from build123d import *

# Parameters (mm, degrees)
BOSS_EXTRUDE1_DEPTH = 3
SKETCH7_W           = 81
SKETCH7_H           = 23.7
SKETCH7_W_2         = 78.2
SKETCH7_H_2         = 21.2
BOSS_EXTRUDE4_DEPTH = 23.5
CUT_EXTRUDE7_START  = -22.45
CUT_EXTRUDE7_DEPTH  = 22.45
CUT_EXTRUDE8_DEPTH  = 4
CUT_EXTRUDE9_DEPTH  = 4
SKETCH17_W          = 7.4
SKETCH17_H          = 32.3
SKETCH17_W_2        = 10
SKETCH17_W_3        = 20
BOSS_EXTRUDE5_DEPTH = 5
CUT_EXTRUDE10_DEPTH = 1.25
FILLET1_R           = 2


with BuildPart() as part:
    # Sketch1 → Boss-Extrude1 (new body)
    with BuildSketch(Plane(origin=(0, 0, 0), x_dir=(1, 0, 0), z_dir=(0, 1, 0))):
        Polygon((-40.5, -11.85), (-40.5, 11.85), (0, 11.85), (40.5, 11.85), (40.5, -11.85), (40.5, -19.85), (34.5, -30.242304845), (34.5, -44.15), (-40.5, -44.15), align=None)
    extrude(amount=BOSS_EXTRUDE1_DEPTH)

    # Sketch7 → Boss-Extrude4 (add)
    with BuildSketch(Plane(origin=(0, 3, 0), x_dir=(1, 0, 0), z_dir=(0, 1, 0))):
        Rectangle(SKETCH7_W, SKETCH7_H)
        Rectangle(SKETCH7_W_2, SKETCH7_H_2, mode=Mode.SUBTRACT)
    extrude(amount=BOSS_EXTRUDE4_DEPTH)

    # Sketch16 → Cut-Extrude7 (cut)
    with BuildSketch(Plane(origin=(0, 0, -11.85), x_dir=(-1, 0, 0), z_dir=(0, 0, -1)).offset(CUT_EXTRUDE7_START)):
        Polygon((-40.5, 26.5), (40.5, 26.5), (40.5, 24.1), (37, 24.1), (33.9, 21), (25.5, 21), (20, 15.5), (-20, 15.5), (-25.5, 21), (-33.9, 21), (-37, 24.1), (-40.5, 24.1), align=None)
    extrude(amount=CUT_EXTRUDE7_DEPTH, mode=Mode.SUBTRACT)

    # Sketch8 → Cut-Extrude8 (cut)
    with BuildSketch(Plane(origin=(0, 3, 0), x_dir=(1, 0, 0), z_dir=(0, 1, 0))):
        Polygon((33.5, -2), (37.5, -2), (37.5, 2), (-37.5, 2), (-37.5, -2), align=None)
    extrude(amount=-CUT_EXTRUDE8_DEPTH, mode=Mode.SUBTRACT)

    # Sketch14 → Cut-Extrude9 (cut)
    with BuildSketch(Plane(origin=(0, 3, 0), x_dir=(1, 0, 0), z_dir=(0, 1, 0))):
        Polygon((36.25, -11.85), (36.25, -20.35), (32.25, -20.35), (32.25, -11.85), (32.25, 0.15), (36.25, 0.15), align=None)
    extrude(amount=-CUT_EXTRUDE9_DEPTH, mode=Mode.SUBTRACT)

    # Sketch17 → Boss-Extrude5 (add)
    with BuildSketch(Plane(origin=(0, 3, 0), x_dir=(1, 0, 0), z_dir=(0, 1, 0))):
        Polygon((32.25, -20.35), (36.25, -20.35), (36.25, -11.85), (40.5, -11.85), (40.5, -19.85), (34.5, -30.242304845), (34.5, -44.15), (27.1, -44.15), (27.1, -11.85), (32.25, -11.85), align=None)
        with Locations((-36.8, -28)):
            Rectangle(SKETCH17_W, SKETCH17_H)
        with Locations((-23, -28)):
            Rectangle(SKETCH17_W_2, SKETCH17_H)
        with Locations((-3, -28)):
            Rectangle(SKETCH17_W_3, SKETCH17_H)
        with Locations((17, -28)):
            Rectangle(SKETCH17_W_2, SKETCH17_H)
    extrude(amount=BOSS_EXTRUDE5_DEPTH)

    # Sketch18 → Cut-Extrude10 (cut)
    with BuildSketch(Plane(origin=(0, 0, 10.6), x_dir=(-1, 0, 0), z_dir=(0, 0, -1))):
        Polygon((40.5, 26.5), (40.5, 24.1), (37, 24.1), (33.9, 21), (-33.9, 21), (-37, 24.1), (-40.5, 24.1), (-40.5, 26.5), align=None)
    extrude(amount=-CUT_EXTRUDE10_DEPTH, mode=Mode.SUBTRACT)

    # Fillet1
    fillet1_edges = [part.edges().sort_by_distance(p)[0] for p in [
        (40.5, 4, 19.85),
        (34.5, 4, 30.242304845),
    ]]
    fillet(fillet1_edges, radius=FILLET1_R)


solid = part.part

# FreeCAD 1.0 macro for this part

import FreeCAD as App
import Part
import Sketcher
from FreeCAD import Vector
Q = App.Units.Quantity


def edges_at(feature, points):
    """Names of the edges that pass closest to the given points."""
    edges = feature.Shape.Edges
    near = lambda p: min(range(len(edges)), key=lambda i: edges[i].distToShape(Part.Vertex(*p))[0])
    return sorted({f"Edge{near(p) + 1}" for p in points})

doc = App.newDocument("Part")
params = doc.addObject("Spreadsheet::Sheet", "Params")
for row, (alias, value) in enumerate([
    ("sketch1_width", "75 mm"),
    ("sketch1_width2", "81 mm"),
    ("sketch1_height", "56 mm"),
    ("sketch1_height2", "31.7 mm"),
    ("pad1_length", "3 mm"),
    ("sketch2_width", "81 mm"),
    ("sketch2_width2", "78.2 mm"),
    ("sketch2_height", "23.7 mm"),
    ("sketch2_height2", "21.2 mm"),
    ("pad2_length", "23.5 mm"),
    ("sketch3_width", "81 mm"),
    ("sketch3_width2", "40 mm"),
    ("sketch3_width3", "3.5 mm"),
    ("sketch3_width4", "8.4 mm"),
    ("sketch3_height", "2.4 mm"),
    ("pocket1_length", "22.45 mm"),
    ("sketch4_width", "75 mm"),
    ("sketch4_height", "4 mm"),
    ("pocket2_length", "4 mm"),
    ("sketch5_width", "4 mm"),
    ("sketch5_height", "20.5 mm"),
    ("pocket3_length", "4 mm"),
    ("sketch6_width", "4 mm"),
    ("sketch6_width2", "10 mm"),
    ("sketch6_width3", "20 mm"),
    ("sketch6_height", "8 mm"),
    ("sketch6_length", "12 mm"),
    ("pad3_length", "5 mm"),
    ("sketch7_width", "81 mm"),
    ("sketch7_width2", "3.5 mm"),
    ("sketch7_width3", "67.8 mm"),
    ("sketch7_height", "2.4 mm"),
    ("pocket4_length", "1.25 mm"),
    ("fillet_radius", "2 mm"),
], start=1):
    params.set(f"A{row}", alias)
    params.set(f"B{row}", "=" + value)
    params.setAlias(f"B{row}", alias)

body = doc.addObject("PartDesign::Body", "Body")

sketch1 = doc.addObject("Sketcher::SketchObject", "Sketch")
body.addObject(sketch1)
sketch1.AttachmentSupport = (doc.XZ_Plane, [""])
sketch1.MapMode = "FlatFace"
sketch1.addGeometry([
    Part.LineSegment(Vector(-40.5, -11.85, 0), Vector(-40.5, 44.15, 0)),
    Part.LineSegment(Vector(-40.5, 44.15, 0), Vector(34.5, 44.15, 0)),
    Part.LineSegment(Vector(34.5, 44.15, 0), Vector(34.5, 30.242305, 0)),
    Part.LineSegment(Vector(34.5, 30.242305, 0), Vector(40.5, 19.85, 0)),
    Part.LineSegment(Vector(40.5, 19.85, 0), Vector(40.5, -11.85, 0)),
    Part.LineSegment(Vector(40.5, -11.85, 0), Vector(-40.5, -11.85, 0)),
], False)
sketch1.addConstraint([
    Sketcher.Constraint("Coincident", 0, 2, 1, 1),
    Sketcher.Constraint("Coincident", 1, 2, 2, 1),
    Sketcher.Constraint("Coincident", 2, 2, 3, 1),
    Sketcher.Constraint("Coincident", 3, 2, 4, 1),
    Sketcher.Constraint("Coincident", 4, 2, 5, 1),
    Sketcher.Constraint("Coincident", 5, 2, 0, 1),
    Sketcher.Constraint("Vertical", 0),
    Sketcher.Constraint("Horizontal", 1),
    Sketcher.Constraint("Vertical", 2),
    Sketcher.Constraint("Vertical", 4),
    Sketcher.Constraint("Horizontal", 5),
    Sketcher.Constraint("DistanceX", 1, 1, 1, 2, 75.0),
    Sketcher.Constraint("DistanceX", 5, 2, 5, 1, 81.0),
    Sketcher.Constraint("DistanceY", 0, 1, 0, 2, 56.0),
    Sketcher.Constraint("Angle", 3, Q("-60 deg")),
    Sketcher.Constraint("DistanceY", 4, 2, 4, 1, 31.7),
    Sketcher.Constraint("DistanceX", 0, 2, -1, 1, 40.5),
    Sketcher.Constraint("DistanceY", -1, 1, 0, 2, 44.15),
])
sketch1.setExpression("Constraints[11]", "Params.sketch1_width")
sketch1.setExpression("Constraints[12]", "Params.sketch1_width2")
sketch1.setExpression("Constraints[13]", "Params.sketch1_height")
sketch1.setExpression("Constraints[15]", "Params.sketch1_height2")
pad1 = doc.addObject("PartDesign::Pad", "Pad")
body.addObject(pad1)
pad1.Profile = sketch1
pad1.setExpression("Length", "Params.pad1_length")
pad1.Reversed = True

sketch2 = doc.addObject("Sketcher::SketchObject", "Sketch001")
body.addObject(sketch2)
sketch2.AttachmentSupport = (doc.XZ_Plane, [""])
sketch2.MapMode = "FlatFace"
sketch2.AttachmentOffset = App.Placement(Vector(0, 0, -3), App.Rotation())
sketch2.addGeometry([
    Part.LineSegment(Vector(-40.5, -11.85, 0), Vector(-40.5, 11.85, 0)),
    Part.LineSegment(Vector(-40.5, 11.85, 0), Vector(40.5, 11.85, 0)),
    Part.LineSegment(Vector(40.5, 11.85, 0), Vector(40.5, -11.85, 0)),
    Part.LineSegment(Vector(40.5, -11.85, 0), Vector(-40.5, -11.85, 0)),
    Part.LineSegment(Vector(39.1, 10.6, 0), Vector(-39.1, 10.6, 0)),
    Part.LineSegment(Vector(-39.1, 10.6, 0), Vector(-39.1, -10.6, 0)),
    Part.LineSegment(Vector(-39.1, -10.6, 0), Vector(39.1, -10.6, 0)),
    Part.LineSegment(Vector(39.1, -10.6, 0), Vector(39.1, 10.6, 0)),
], False)
sketch2.addConstraint([
    Sketcher.Constraint("Coincident", 0, 2, 1, 1),
    Sketcher.Constraint("Coincident", 1, 2, 2, 1),
    Sketcher.Constraint("Coincident", 2, 2, 3, 1),
    Sketcher.Constraint("Coincident", 3, 2, 0, 1),
    Sketcher.Constraint("Coincident", 4, 2, 5, 1),
    Sketcher.Constraint("Coincident", 5, 2, 6, 1),
    Sketcher.Constraint("Coincident", 6, 2, 7, 1),
    Sketcher.Constraint("Coincident", 7, 2, 4, 1),
    Sketcher.Constraint("Vertical", 0),
    Sketcher.Constraint("Horizontal", 1),
    Sketcher.Constraint("Vertical", 2),
    Sketcher.Constraint("Horizontal", 3),
    Sketcher.Constraint("Horizontal", 4),
    Sketcher.Constraint("Vertical", 5),
    Sketcher.Constraint("Horizontal", 6),
    Sketcher.Constraint("Vertical", 7),
    Sketcher.Constraint("Symmetric", 0, 2, 2, 2, -1, 1),
    Sketcher.Constraint("Symmetric", 4, 2, 6, 2, -1, 1),
    Sketcher.Constraint("DistanceX", 1, 1, 1, 2, 81.0),
    Sketcher.Constraint("DistanceX", 4, 2, 4, 1, 78.2),
    Sketcher.Constraint("DistanceY", 0, 1, 0, 2, 23.7),
    Sketcher.Constraint("DistanceY", 5, 2, 5, 1, 21.2),
])
sketch2.setExpression("Constraints[18]", "Params.sketch2_width")
sketch2.setExpression("Constraints[19]", "Params.sketch2_width2")
sketch2.setExpression("Constraints[20]", "Params.sketch2_height")
sketch2.setExpression("Constraints[21]", "Params.sketch2_height2")
pad2 = doc.addObject("PartDesign::Pad", "Pad001")
body.addObject(pad2)
pad2.Profile = sketch2
pad2.setExpression("Length", "Params.pad2_length")
pad2.Reversed = True

sketch3 = doc.addObject("Sketcher::SketchObject", "Sketch002")
body.addObject(sketch3)
sketch3.AttachmentSupport = (doc.XY_Plane, [""])
sketch3.MapMode = "FlatFace"
sketch3.AttachmentOffset = App.Placement(Vector(0, 0, 10.6), App.Rotation())
sketch3.addGeometry([
    Part.LineSegment(Vector(-40.5, 26.5, 0), Vector(40.5, 26.5, 0)),
    Part.LineSegment(Vector(40.5, 26.5, 0), Vector(40.5, 24.1, 0)),
    Part.LineSegment(Vector(40.5, 24.1, 0), Vector(37, 24.1, 0)),
    Part.LineSegment(Vector(37, 24.1, 0), Vector(33.9, 21, 0)),
    Part.LineSegment(Vector(33.9, 21, 0), Vector(25.5, 21, 0)),
    Part.LineSegment(Vector(25.5, 21, 0), Vector(20, 15.5, 0)),
    Part.LineSegment(Vector(20, 15.5, 0), Vector(-20, 15.5, 0)),
    Part.LineSegment(Vector(-20, 15.5, 0), Vector(-25.5, 21, 0)),
    Part.LineSegment(Vector(-25.5, 21, 0), Vector(-33.9, 21, 0)),
    Part.LineSegment(Vector(-33.9, 21, 0), Vector(-37, 24.1, 0)),
    Part.LineSegment(Vector(-37, 24.1, 0), Vector(-40.5, 24.1, 0)),
    Part.LineSegment(Vector(-40.5, 24.1, 0), Vector(-40.5, 26.5, 0)),
], False)
sketch3.addConstraint([
    Sketcher.Constraint("Coincident", 0, 2, 1, 1),
    Sketcher.Constraint("Coincident", 1, 2, 2, 1),
    Sketcher.Constraint("Coincident", 2, 2, 3, 1),
    Sketcher.Constraint("Coincident", 3, 2, 4, 1),
    Sketcher.Constraint("Coincident", 4, 2, 5, 1),
    Sketcher.Constraint("Coincident", 5, 2, 6, 1),
    Sketcher.Constraint("Coincident", 6, 2, 7, 1),
    Sketcher.Constraint("Coincident", 7, 2, 8, 1),
    Sketcher.Constraint("Coincident", 8, 2, 9, 1),
    Sketcher.Constraint("Coincident", 9, 2, 10, 1),
    Sketcher.Constraint("Coincident", 10, 2, 11, 1),
    Sketcher.Constraint("Coincident", 11, 2, 0, 1),
    Sketcher.Constraint("Horizontal", 0),
    Sketcher.Constraint("Vertical", 1),
    Sketcher.Constraint("Horizontal", 2),
    Sketcher.Constraint("Horizontal", 4),
    Sketcher.Constraint("Horizontal", 6),
    Sketcher.Constraint("Horizontal", 8),
    Sketcher.Constraint("Horizontal", 10),
    Sketcher.Constraint("Vertical", 11),
    Sketcher.Constraint("Symmetric", 4, 2, 7, 2, -2),
    Sketcher.Constraint("Symmetric", 2, 2, 9, 2, -2),
    Sketcher.Constraint("Parallel", 3, 5),
    Sketcher.Constraint("Perpendicular", 5, 7),
    Sketcher.Constraint("Parallel", 7, 9),
    Sketcher.Constraint("Equal", 4, 8),
    Sketcher.Constraint("Equal", 2, 10),
    Sketcher.Constraint("DistanceX", 0, 1, 0, 2, 81.0),
    Sketcher.Constraint("DistanceX", 6, 2, 6, 1, 40.0),
    Sketcher.Constraint("DistanceX", 2, 2, 2, 1, 3.5),
    Sketcher.Constraint("DistanceX", 4, 2, 4, 1, 8.4),
    Sketcher.Constraint("DistanceY", 1, 2, 1, 1, 2.4),
    Sketcher.Constraint("DistanceY", -1, 1, 3, 2, 21.0),
    Sketcher.Constraint("DistanceX", 4, 2, 1, 2, 15.0),
])
sketch3.setExpression("Constraints[27]", "Params.sketch3_width")
sketch3.setExpression("Constraints[28]", "Params.sketch3_width2")
sketch3.setExpression("Constraints[29]", "Params.sketch3_width3")
sketch3.setExpression("Constraints[30]", "Params.sketch3_width4")
sketch3.setExpression("Constraints[31]", "Params.sketch3_height")
pocket1 = doc.addObject("PartDesign::Pocket", "Pocket")
body.addObject(pocket1)
pocket1.Profile = sketch3
pocket1.setExpression("Length", "Params.pocket1_length")

sketch4 = doc.addObject("Sketcher::SketchObject", "Sketch003")
body.addObject(sketch4)
sketch4.AttachmentSupport = (doc.XZ_Plane, [""])
sketch4.MapMode = "FlatFace"
sketch4.AttachmentOffset = App.Placement(Vector(0, 0, -3), App.Rotation())
sketch4.addGeometry([
    Part.LineSegment(Vector(37.5, 2, 0), Vector(37.5, -2, 0)),
    Part.LineSegment(Vector(37.5, -2, 0), Vector(-37.5, -2, 0)),
    Part.LineSegment(Vector(-37.5, -2, 0), Vector(-37.5, 2, 0)),
    Part.LineSegment(Vector(-37.5, 2, 0), Vector(37.5, 2, 0)),
], False)
sketch4.addConstraint([
    Sketcher.Constraint("Coincident", 0, 2, 1, 1),
    Sketcher.Constraint("Coincident", 1, 2, 2, 1),
    Sketcher.Constraint("Coincident", 2, 2, 3, 1),
    Sketcher.Constraint("Coincident", 3, 2, 0, 1),
    Sketcher.Constraint("Vertical", 0),
    Sketcher.Constraint("Horizontal", 1),
    Sketcher.Constraint("Vertical", 2),
    Sketcher.Constraint("Horizontal", 3),
    Sketcher.Constraint("Symmetric", 0, 2, 2, 2, -1, 1),
    Sketcher.Constraint("DistanceX", 1, 2, 1, 1, 75.0),
    Sketcher.Constraint("DistanceY", 0, 2, 0, 1, 4.0),
])
sketch4.setExpression("Constraints[9]", "Params.sketch4_width")
sketch4.setExpression("Constraints[10]", "Params.sketch4_height")
pocket2 = doc.addObject("PartDesign::Pocket", "Pocket001")
body.addObject(pocket2)
pocket2.Profile = sketch4
pocket2.setExpression("Length", "Params.pocket2_length")
pocket2.Reversed = True

sketch5 = doc.addObject("Sketcher::SketchObject", "Sketch004")
body.addObject(sketch5)
sketch5.AttachmentSupport = (doc.XZ_Plane, [""])
sketch5.MapMode = "FlatFace"
sketch5.AttachmentOffset = App.Placement(Vector(0, 0, -3), App.Rotation())
sketch5.addGeometry([
    Part.LineSegment(Vector(36.25, 20.35, 0), Vector(36.25, -0.15, 0)),
    Part.LineSegment(Vector(36.25, -0.15, 0), Vector(32.25, -0.15, 0)),
    Part.LineSegment(Vector(32.25, -0.15, 0), Vector(32.25, 20.35, 0)),
    Part.LineSegment(Vector(32.25, 20.35, 0), Vector(36.25, 20.35, 0)),
], False)
sketch5.addConstraint([
    Sketcher.Constraint("Coincident", 0, 2, 1, 1),
    Sketcher.Constraint("Coincident", 1, 2, 2, 1),
    Sketcher.Constraint("Coincident", 2, 2, 3, 1),
    Sketcher.Constraint("Coincident", 3, 2, 0, 1),
    Sketcher.Constraint("Vertical", 0),
    Sketcher.Constraint("Horizontal", 1),
    Sketcher.Constraint("Vertical", 2),
    Sketcher.Constraint("Horizontal", 3),
    Sketcher.Constraint("DistanceX", 1, 2, 1, 1, 4.0),
    Sketcher.Constraint("DistanceY", 0, 2, 0, 1, 20.5),
    Sketcher.Constraint("DistanceX", -1, 1, 0, 2, 36.25),
    Sketcher.Constraint("DistanceY", 0, 2, -1, 1, 0.15),
])
sketch5.setExpression("Constraints[8]", "Params.sketch5_width")
sketch5.setExpression("Constraints[9]", "Params.sketch5_height")
pocket3 = doc.addObject("PartDesign::Pocket", "Pocket002")
body.addObject(pocket3)
pocket3.Profile = sketch5
pocket3.setExpression("Length", "Params.pocket3_length")
pocket3.Reversed = True

sketch6 = doc.addObject("Sketcher::SketchObject", "Sketch005")
body.addObject(sketch6)
sketch6.AttachmentSupport = (doc.XZ_Plane, [""])
sketch6.MapMode = "FlatFace"
sketch6.AttachmentOffset = App.Placement(Vector(0, 0, -3), App.Rotation())
sketch6.addGeometry([
    Part.LineSegment(Vector(36.25, 20.35, 0), Vector(32.25, 20.35, 0)),
    Part.LineSegment(Vector(32.25, 20.35, 0), Vector(32.25, 11.85, 0)),
    Part.LineSegment(Vector(32.25, 11.85, 0), Vector(27.1, 11.85, 0)),
    Part.LineSegment(Vector(27.1, 11.85, 0), Vector(27.1, 44.15, 0)),
    Part.LineSegment(Vector(27.1, 44.15, 0), Vector(34.5, 44.15, 0)),
    Part.LineSegment(Vector(34.5, 44.15, 0), Vector(34.5, 30.242305, 0)),
    Part.LineSegment(Vector(34.5, 30.242305, 0), Vector(40.5, 19.85, 0)),
    Part.LineSegment(Vector(40.5, 19.85, 0), Vector(40.5, 11.85, 0)),
    Part.LineSegment(Vector(40.5, 11.85, 0), Vector(36.25, 11.85, 0)),
    Part.LineSegment(Vector(36.25, 11.85, 0), Vector(36.25, 20.35, 0)),
    Part.LineSegment(Vector(-40.5, 11.85, 0), Vector(-40.5, 44.15, 0)),
    Part.LineSegment(Vector(-40.5, 44.15, 0), Vector(-33.1, 44.15, 0)),
    Part.LineSegment(Vector(-33.1, 44.15, 0), Vector(-33.1, 11.85, 0)),
    Part.LineSegment(Vector(-33.1, 11.85, 0), Vector(-40.5, 11.85, 0)),
    Part.LineSegment(Vector(-28, 11.85, 0), Vector(-28, 44.15, 0)),
    Part.LineSegment(Vector(-28, 44.15, 0), Vector(-18, 44.15, 0)),
    Part.LineSegment(Vector(-18, 44.15, 0), Vector(-18, 11.85, 0)),
    Part.LineSegment(Vector(-18, 11.85, 0), Vector(-28, 11.85, 0)),
    Part.LineSegment(Vector(-13, 11.85, 0), Vector(-13, 44.15, 0)),
    Part.LineSegment(Vector(-13, 44.15, 0), Vector(7, 44.15, 0)),
    Part.LineSegment(Vector(7, 44.15, 0), Vector(7, 11.85, 0)),
    Part.LineSegment(Vector(7, 11.85, 0), Vector(-13, 11.85, 0)),
    Part.LineSegment(Vector(12, 11.85, 0), Vector(12, 44.15, 0)),
    Part.LineSegment(Vector(12, 44.15, 0), Vector(22, 44.15, 0)),
    Part.LineSegment(Vector(22, 44.15, 0), Vector(22, 11.85, 0)),
    Part.LineSegment(Vector(22, 11.85, 0), Vector(12, 11.85, 0)),
], False)
sketch6.addConstraint([
    Sketcher.Constraint("Coincident", 0, 2, 1, 1),
    Sketcher.Constraint("Coincident", 1, 2, 2, 1),
    Sketcher.Constraint("Coincident", 2, 2, 3, 1),
    Sketcher.Constraint("Coincident", 3, 2, 4, 1),
    Sketcher.Constraint("Coincident", 4, 2, 5, 1),
    Sketcher.Constraint("Coincident", 5, 2, 6, 1),
    Sketcher.Constraint("Coincident", 6, 2, 7, 1),
    Sketcher.Constraint("Coincident", 7, 2, 8, 1),
    Sketcher.Constraint("Coincident", 8, 2, 9, 1),
    Sketcher.Constraint("Coincident", 9, 2, 0, 1),
    Sketcher.Constraint("Coincident", 10, 2, 11, 1),
    Sketcher.Constraint("Coincident", 11, 2, 12, 1),
    Sketcher.Constraint("Coincident", 12, 2, 13, 1),
    Sketcher.Constraint("Coincident", 13, 2, 10, 1),
    Sketcher.Constraint("Coincident", 14, 2, 15, 1),
    Sketcher.Constraint("Coincident", 15, 2, 16, 1),
    Sketcher.Constraint("Coincident", 16, 2, 17, 1),
    Sketcher.Constraint("Coincident", 17, 2, 14, 1),
    Sketcher.Constraint("Coincident", 18, 2, 19, 1),
    Sketcher.Constraint("Coincident", 19, 2, 20, 1),
    Sketcher.Constraint("Coincident", 20, 2, 21, 1),
    Sketcher.Constraint("Coincident", 21, 2, 18, 1),
    Sketcher.Constraint("Coincident", 22, 2, 23, 1),
    Sketcher.Constraint("Coincident", 23, 2, 24, 1),
    Sketcher.Constraint("Coincident", 24, 2, 25, 1),
    Sketcher.Constraint("Coincident", 25, 2, 22, 1),
    Sketcher.Constraint("Horizontal", 0),
    Sketcher.Constraint("Vertical", 1),
    Sketcher.Constraint("Horizontal", 2),
    Sketcher.Constraint("Vertical", 3),
    Sketcher.Constraint("Horizontal", 4),
    Sketcher.Constraint("Vertical", 5),
    Sketcher.Constraint("Vertical", 7),
    Sketcher.Constraint("Horizontal", 8),
    Sketcher.Constraint("Vertical", 9),
    Sketcher.Constraint("Vertical", 10),
    Sketcher.Constraint("Horizontal", 11),
    Sketcher.Constraint("Vertical", 12),
    Sketcher.Constraint("Horizontal", 13),
    Sketcher.Constraint("Vertical", 14),
    Sketcher.Constraint("Horizontal", 15),
    Sketcher.Constraint("Vertical", 16),
    Sketcher.Constraint("Horizontal", 17),
    Sketcher.Constraint("Vertical", 18),
    Sketcher.Constraint("Horizontal", 19),
    Sketcher.Constraint("Vertical", 20),
    Sketcher.Constraint("Horizontal", 21),
    Sketcher.Constraint("Vertical", 22),
    Sketcher.Constraint("Horizontal", 23),
    Sketcher.Constraint("Vertical", 24),
    Sketcher.Constraint("Horizontal", 25),
    Sketcher.Constraint("Symmetric", 7, 2, 13, 2, -2),
    Sketcher.Constraint("Horizontal", 2, 2, 7, 2),
    Sketcher.Constraint("Horizontal", 4, 2, 10, 2),
    Sketcher.Constraint("Horizontal", 11, 2, 14, 2),
    Sketcher.Constraint("Horizontal", 13, 2, 16, 2),
    Sketcher.Constraint("Horizontal", 15, 2, 18, 2),
    Sketcher.Constraint("Horizontal", 17, 2, 20, 2),
    Sketcher.Constraint("Horizontal", 19, 2, 22, 2),
    Sketcher.Constraint("Horizontal", 21, 2, 24, 2),
    Sketcher.Constraint("Equal", 4, 11),
    Sketcher.Constraint("Equal", 17, 23),
    Sketcher.Constraint("DistanceX", 0, 2, 0, 1, 4.0),
    Sketcher.Constraint("DistanceX", 15, 1, 15, 2, 10.0),
    Sketcher.Constraint("DistanceX", 19, 1, 19, 2, 20.0),
    Sketcher.Constraint("DistanceY", 7, 2, 7, 1, 8.0),
    Sketcher.Constraint("Angle", 6, Q("-60 deg")),
    Sketcher.Constraint("Distance", 6, 12.0),
    Sketcher.Constraint("DistanceX", 4, 1, 4, 2, 7.4),
    Sketcher.Constraint("DistanceY", 1, 2, 1, 1, 8.5),
    Sketcher.Constraint("DistanceY", 3, 1, 3, 2, 32.3),
    Sketcher.Constraint("DistanceX", 14, 2, -1, 1, 28.0),
    Sketcher.Constraint("DistanceX", 18, 2, -1, 1, 13.0),
    Sketcher.Constraint("DistanceX", -1, 1, 22, 2, 12.0),
    Sketcher.Constraint("DistanceX", 10, 2, 4, 2, 75.0),
    Sketcher.Constraint("DistanceX", 2, 2, 2, 1, 5.15),
    Sketcher.Constraint("DistanceY", -1, 1, 0, 2, 20.35),
])
sketch6.setExpression("Constraints[62]", "Params.sketch6_width")
sketch6.setExpression("Constraints[63]", "Params.sketch6_width2")
sketch6.setExpression("Constraints[64]", "Params.sketch6_width3")
sketch6.setExpression("Constraints[65]", "Params.sketch6_height")
sketch6.setExpression("Constraints[67]", "Params.sketch6_length")
pad3 = doc.addObject("PartDesign::Pad", "Pad002")
body.addObject(pad3)
pad3.Profile = sketch6
pad3.setExpression("Length", "Params.pad3_length")
pad3.Reversed = True

sketch7 = doc.addObject("Sketcher::SketchObject", "Sketch006")
body.addObject(sketch7)
sketch7.AttachmentSupport = (doc.XY_Plane, [""])
sketch7.MapMode = "FlatFace"
sketch7.AttachmentOffset = App.Placement(Vector(0, 0, 10.6), App.Rotation())
sketch7.addGeometry([
    Part.LineSegment(Vector(-40.5, 24.1, 0), Vector(-40.5, 26.5, 0)),
    Part.LineSegment(Vector(-40.5, 26.5, 0), Vector(40.5, 26.5, 0)),
    Part.LineSegment(Vector(40.5, 26.5, 0), Vector(40.5, 24.1, 0)),
    Part.LineSegment(Vector(40.5, 24.1, 0), Vector(37, 24.1, 0)),
    Part.LineSegment(Vector(37, 24.1, 0), Vector(33.9, 21, 0)),
    Part.LineSegment(Vector(33.9, 21, 0), Vector(-33.9, 21, 0)),
    Part.LineSegment(Vector(-33.9, 21, 0), Vector(-37, 24.1, 0)),
    Part.LineSegment(Vector(-37, 24.1, 0), Vector(-40.5, 24.1, 0)),
], False)
sketch7.addConstraint([
    Sketcher.Constraint("Coincident", 0, 2, 1, 1),
    Sketcher.Constraint("Coincident", 1, 2, 2, 1),
    Sketcher.Constraint("Coincident", 2, 2, 3, 1),
    Sketcher.Constraint("Coincident", 3, 2, 4, 1),
    Sketcher.Constraint("Coincident", 4, 2, 5, 1),
    Sketcher.Constraint("Coincident", 5, 2, 6, 1),
    Sketcher.Constraint("Coincident", 6, 2, 7, 1),
    Sketcher.Constraint("Coincident", 7, 2, 0, 1),
    Sketcher.Constraint("Vertical", 0),
    Sketcher.Constraint("Horizontal", 1),
    Sketcher.Constraint("Vertical", 2),
    Sketcher.Constraint("Horizontal", 3),
    Sketcher.Constraint("Horizontal", 5),
    Sketcher.Constraint("Horizontal", 7),
    Sketcher.Constraint("Symmetric", 3, 2, 6, 2, -2),
    Sketcher.Constraint("Perpendicular", 4, 6),
    Sketcher.Constraint("Equal", 3, 7),
    Sketcher.Constraint("Equal", 4, 6),
    Sketcher.Constraint("DistanceX", 1, 1, 1, 2, 81.0),
    Sketcher.Constraint("DistanceX", 3, 2, 3, 1, 3.5),
    Sketcher.Constraint("DistanceX", 5, 2, 5, 1, 67.8),
    Sketcher.Constraint("DistanceY", 0, 1, 0, 2, 2.4),
    Sketcher.Constraint("DistanceY", -1, 1, 4, 2, 21.0),
])
sketch7.setExpression("Constraints[18]", "Params.sketch7_width")
sketch7.setExpression("Constraints[19]", "Params.sketch7_width2")
sketch7.setExpression("Constraints[20]", "Params.sketch7_width3")
sketch7.setExpression("Constraints[21]", "Params.sketch7_height")
pocket4 = doc.addObject("PartDesign::Pocket", "Pocket003")
body.addObject(pocket4)
pocket4.Profile = sketch7
pocket4.setExpression("Length", "Params.pocket4_length")
pocket4.Reversed = True
doc.recompute()

fillet = doc.addObject("PartDesign::Fillet", "Fillet")
body.addObject(fillet)
fillet.Base = (pocket4, edges_at(pocket4, [(40.5, 4, 19.85), (34.5, 4, 30.242)]))
fillet.setExpression("Radius", "Params.fillet_radius")

doc.recompute()
